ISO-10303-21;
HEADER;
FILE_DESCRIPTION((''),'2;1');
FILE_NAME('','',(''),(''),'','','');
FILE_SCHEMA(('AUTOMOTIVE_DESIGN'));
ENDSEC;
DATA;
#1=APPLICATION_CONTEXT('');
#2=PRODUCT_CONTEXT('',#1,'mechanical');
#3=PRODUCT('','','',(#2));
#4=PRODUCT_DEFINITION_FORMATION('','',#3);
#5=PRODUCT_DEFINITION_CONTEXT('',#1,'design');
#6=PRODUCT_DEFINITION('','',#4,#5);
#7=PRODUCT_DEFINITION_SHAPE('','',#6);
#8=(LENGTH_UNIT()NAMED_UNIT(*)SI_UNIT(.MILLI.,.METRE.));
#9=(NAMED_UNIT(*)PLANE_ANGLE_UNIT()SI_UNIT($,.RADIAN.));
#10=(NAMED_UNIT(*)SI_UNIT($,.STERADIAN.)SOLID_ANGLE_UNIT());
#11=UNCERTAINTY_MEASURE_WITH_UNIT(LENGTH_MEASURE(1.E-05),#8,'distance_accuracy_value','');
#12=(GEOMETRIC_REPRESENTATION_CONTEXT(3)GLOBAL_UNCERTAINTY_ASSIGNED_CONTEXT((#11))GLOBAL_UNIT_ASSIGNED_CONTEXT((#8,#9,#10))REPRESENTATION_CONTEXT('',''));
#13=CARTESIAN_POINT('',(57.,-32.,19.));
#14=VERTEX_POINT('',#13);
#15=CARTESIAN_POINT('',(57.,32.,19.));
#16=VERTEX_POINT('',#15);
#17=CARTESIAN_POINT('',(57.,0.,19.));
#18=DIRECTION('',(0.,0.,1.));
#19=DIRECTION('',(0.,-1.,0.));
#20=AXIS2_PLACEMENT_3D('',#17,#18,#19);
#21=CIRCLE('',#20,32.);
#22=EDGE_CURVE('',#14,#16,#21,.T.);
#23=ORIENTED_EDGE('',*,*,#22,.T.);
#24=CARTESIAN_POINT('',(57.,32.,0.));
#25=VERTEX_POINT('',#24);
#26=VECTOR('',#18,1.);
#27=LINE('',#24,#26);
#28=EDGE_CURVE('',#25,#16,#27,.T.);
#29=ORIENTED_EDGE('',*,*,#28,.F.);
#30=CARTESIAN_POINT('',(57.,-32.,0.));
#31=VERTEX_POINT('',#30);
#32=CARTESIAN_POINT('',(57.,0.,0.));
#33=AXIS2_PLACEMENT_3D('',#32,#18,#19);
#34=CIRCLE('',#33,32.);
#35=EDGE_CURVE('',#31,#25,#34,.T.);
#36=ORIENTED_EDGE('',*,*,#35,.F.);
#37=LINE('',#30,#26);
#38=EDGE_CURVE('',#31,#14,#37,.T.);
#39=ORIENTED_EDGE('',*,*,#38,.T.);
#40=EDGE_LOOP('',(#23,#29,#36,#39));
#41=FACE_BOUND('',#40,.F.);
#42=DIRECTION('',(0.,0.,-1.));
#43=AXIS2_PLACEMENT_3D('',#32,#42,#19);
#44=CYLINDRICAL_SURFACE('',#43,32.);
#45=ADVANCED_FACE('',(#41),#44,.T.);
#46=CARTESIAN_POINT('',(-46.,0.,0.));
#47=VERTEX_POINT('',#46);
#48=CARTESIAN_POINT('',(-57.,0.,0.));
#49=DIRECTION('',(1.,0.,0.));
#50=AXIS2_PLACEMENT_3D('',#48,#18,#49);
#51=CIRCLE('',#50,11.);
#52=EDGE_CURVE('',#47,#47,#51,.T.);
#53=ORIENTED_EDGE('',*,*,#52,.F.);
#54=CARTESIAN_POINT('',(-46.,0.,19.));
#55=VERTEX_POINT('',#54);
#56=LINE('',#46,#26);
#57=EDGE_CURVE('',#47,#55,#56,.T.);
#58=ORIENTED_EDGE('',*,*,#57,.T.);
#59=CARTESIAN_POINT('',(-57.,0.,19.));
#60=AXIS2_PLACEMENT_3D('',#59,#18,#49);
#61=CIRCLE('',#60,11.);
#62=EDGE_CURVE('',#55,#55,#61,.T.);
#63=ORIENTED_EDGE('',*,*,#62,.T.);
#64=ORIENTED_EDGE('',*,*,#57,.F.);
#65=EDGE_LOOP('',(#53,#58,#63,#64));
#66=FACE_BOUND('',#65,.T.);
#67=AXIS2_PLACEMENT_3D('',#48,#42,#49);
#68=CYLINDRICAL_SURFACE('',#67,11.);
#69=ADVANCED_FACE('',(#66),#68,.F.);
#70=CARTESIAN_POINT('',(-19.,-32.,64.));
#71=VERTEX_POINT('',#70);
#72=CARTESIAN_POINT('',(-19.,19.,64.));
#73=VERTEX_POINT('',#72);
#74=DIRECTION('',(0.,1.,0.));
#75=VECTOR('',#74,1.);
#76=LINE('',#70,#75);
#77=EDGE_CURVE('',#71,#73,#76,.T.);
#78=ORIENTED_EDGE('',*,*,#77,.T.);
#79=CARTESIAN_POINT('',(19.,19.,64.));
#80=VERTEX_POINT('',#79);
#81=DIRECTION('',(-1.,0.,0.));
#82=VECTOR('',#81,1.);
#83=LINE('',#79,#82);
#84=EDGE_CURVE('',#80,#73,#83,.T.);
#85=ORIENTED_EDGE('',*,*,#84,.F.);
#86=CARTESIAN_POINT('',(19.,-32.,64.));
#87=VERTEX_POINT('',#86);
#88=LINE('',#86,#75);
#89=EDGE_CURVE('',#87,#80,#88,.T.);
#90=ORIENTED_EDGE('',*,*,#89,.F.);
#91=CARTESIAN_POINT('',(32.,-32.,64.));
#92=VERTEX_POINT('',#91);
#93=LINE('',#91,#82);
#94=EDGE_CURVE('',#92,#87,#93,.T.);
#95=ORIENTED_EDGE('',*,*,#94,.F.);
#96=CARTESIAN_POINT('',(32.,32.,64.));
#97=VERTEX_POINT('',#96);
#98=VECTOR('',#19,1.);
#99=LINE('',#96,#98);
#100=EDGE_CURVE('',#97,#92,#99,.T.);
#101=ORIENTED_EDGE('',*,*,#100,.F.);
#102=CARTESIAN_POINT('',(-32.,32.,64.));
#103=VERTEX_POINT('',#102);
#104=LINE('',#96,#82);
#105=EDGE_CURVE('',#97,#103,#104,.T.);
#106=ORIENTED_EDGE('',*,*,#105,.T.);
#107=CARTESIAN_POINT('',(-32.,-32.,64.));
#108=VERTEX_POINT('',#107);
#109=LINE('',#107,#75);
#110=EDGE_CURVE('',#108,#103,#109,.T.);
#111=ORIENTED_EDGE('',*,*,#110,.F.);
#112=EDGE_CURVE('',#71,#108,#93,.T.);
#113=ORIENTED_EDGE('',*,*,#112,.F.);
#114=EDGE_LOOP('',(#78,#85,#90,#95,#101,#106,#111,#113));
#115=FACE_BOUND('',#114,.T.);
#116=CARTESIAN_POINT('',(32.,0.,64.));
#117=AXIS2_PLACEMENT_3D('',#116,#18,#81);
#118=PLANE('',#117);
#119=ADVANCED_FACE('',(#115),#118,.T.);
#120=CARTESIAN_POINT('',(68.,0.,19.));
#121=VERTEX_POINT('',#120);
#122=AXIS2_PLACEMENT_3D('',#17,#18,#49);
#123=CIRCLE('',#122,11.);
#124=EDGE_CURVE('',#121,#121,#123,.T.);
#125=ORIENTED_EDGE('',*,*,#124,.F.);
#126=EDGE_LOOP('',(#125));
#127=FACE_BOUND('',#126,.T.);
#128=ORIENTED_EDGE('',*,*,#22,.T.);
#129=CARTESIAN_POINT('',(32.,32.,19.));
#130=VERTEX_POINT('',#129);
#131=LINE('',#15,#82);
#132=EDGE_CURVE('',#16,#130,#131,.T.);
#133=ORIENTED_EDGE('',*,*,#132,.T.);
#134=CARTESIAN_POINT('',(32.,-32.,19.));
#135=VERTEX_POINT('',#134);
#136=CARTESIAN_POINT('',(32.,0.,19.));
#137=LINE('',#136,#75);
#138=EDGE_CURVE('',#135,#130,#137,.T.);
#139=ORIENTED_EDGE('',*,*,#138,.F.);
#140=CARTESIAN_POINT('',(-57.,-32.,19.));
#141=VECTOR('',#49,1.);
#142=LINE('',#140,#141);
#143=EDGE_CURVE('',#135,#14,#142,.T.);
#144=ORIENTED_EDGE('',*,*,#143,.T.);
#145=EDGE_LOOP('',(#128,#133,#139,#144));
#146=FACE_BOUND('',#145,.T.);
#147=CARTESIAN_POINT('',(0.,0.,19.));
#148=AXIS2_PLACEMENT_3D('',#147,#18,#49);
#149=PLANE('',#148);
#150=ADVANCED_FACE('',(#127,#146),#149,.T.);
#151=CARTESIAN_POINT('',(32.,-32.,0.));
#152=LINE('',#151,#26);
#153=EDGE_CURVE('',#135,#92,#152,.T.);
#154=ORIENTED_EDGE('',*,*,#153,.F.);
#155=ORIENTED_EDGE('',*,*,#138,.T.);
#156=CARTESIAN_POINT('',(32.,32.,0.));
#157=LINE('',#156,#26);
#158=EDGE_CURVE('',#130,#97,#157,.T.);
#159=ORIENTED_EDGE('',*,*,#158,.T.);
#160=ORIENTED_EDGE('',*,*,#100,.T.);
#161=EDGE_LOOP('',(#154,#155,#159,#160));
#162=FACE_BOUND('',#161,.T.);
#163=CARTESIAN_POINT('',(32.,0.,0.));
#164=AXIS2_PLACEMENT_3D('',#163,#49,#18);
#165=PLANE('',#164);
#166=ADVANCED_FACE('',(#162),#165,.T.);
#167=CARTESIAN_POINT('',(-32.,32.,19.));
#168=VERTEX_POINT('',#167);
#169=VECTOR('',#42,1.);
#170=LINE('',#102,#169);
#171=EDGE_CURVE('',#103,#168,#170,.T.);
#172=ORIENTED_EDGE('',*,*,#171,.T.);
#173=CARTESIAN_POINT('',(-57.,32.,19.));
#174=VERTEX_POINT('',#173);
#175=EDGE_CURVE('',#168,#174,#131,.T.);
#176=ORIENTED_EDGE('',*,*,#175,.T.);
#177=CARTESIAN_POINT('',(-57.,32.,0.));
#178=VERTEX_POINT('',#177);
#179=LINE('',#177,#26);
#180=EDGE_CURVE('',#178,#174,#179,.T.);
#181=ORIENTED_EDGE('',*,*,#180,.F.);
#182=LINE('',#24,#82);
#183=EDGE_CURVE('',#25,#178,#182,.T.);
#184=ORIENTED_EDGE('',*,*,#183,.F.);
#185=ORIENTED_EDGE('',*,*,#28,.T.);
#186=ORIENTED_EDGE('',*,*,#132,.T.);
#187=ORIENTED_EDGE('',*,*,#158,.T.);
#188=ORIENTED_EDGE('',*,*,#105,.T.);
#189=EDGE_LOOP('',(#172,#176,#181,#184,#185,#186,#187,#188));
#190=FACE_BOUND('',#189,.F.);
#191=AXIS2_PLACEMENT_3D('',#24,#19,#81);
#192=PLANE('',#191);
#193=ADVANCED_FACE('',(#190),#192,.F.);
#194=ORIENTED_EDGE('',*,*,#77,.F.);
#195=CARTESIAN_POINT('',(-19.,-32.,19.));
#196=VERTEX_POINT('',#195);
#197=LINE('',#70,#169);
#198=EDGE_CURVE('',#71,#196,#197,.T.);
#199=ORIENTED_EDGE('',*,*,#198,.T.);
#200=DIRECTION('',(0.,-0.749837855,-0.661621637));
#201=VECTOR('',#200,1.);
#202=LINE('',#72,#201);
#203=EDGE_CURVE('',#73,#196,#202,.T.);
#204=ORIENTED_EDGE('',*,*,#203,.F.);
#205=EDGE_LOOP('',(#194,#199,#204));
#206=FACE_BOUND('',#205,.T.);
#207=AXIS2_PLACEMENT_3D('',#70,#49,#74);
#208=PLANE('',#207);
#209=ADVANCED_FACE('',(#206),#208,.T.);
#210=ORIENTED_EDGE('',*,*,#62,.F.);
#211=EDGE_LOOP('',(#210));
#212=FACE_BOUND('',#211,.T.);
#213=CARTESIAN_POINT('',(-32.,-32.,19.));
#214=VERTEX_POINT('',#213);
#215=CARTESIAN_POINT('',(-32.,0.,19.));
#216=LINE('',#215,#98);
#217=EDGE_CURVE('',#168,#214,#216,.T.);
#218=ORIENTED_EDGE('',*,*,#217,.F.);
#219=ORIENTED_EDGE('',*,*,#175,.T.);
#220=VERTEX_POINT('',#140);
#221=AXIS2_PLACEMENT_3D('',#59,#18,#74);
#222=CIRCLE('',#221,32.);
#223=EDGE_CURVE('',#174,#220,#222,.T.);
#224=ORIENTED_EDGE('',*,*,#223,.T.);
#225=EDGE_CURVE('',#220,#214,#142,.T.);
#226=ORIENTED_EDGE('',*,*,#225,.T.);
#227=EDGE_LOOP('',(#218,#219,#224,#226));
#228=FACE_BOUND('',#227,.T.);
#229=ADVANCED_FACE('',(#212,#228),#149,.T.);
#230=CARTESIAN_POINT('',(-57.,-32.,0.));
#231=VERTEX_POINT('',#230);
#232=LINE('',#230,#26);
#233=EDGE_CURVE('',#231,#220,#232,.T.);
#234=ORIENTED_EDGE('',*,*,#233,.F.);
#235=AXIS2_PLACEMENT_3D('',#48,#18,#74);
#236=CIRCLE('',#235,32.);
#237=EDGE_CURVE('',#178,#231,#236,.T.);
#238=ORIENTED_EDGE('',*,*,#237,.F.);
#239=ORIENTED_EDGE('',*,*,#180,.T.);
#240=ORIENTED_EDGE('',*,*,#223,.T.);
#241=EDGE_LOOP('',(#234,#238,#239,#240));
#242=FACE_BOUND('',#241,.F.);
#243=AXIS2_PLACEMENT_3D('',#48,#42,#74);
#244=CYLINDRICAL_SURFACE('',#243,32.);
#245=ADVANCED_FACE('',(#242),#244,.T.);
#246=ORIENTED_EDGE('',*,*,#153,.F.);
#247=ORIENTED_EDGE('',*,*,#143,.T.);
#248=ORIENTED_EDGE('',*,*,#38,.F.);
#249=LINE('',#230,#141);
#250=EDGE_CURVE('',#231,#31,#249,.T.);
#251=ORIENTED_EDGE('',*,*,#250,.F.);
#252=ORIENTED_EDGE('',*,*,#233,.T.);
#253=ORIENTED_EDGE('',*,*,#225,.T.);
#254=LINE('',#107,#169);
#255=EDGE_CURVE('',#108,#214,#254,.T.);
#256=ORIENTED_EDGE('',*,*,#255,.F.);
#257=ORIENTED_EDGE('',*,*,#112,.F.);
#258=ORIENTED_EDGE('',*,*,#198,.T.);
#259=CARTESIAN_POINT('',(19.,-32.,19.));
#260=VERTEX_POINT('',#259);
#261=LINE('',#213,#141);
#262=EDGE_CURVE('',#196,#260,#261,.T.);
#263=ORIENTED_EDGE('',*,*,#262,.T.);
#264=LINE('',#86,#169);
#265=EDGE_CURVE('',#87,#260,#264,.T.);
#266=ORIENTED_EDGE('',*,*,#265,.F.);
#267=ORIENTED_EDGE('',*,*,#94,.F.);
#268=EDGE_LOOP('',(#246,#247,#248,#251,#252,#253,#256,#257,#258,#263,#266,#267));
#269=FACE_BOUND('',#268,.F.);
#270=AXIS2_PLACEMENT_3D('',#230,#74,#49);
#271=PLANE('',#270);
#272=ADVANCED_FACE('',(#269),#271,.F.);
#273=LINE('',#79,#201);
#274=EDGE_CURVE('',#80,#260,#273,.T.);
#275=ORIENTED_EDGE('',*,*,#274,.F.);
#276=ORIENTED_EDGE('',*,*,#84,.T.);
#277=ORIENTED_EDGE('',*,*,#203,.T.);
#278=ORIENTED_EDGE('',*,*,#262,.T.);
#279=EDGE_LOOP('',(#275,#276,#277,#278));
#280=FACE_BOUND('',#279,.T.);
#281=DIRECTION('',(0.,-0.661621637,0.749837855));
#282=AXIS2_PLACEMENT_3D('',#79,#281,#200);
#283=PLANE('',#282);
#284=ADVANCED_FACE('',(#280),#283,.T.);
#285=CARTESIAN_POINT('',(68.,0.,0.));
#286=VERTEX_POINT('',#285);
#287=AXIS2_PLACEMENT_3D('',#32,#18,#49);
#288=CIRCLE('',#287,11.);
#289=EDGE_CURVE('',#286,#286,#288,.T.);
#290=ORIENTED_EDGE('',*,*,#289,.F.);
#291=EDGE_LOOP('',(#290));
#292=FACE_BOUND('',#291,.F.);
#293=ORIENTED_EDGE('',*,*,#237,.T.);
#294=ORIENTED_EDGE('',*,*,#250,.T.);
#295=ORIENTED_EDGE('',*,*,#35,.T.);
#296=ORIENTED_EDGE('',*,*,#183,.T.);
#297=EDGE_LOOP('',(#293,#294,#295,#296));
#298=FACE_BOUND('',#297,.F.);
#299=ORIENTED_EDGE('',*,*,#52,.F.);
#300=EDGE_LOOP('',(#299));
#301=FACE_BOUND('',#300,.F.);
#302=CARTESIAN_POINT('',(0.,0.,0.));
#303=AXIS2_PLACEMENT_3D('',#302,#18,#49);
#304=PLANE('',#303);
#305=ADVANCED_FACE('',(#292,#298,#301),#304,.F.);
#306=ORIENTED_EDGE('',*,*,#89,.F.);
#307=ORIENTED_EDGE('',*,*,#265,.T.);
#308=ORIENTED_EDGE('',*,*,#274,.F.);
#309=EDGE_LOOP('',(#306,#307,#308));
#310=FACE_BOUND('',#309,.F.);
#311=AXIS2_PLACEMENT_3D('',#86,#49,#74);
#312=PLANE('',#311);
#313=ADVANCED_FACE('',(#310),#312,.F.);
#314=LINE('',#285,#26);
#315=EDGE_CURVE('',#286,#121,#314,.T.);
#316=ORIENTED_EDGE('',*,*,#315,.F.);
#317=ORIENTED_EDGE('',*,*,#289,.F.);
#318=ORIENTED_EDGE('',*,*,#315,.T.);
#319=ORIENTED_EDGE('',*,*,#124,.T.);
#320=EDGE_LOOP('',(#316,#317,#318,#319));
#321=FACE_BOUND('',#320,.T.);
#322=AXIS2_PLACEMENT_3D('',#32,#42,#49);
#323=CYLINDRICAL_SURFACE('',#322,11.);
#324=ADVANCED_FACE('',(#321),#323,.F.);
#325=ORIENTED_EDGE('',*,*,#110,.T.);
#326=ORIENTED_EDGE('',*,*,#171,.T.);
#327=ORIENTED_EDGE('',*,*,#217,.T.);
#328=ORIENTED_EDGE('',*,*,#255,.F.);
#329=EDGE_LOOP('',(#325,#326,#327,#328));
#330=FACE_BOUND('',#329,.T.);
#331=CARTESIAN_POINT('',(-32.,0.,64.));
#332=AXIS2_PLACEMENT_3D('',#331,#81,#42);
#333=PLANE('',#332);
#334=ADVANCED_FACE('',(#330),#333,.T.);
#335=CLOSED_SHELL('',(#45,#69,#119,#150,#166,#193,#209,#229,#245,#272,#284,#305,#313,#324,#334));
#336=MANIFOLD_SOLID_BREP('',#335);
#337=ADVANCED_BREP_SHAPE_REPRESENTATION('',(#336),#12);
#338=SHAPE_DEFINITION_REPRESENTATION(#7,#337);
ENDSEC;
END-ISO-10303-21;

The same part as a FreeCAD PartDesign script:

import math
import FreeCAD as App
import Part
import Sketcher
from FreeCAD import Vector


def add_polygon(sketch, points):
    """Adds a closed chain of lines whose ends are joined by coincident constraints."""
    first, n = sketch.GeometryCount, len(points)
    for a, b in zip(points, points[1:] + points[:1]):
        sketch.addGeometry(Part.LineSegment(App.Vector(*a, 0), App.Vector(*b, 0)), False)
    for i in range(n):
        sketch.addConstraint(Sketcher.Constraint("Coincident", first + i, 2, first + (i + 1) % n, 1))

doc = App.newDocument("Part")
body = doc.addObject("PartDesign::Body", "Body")

# Sketch on XY plane
sketch1 = doc.addObject("Sketcher::SketchObject", "Sketch")
body.addObject(sketch1)
sketch1.AttachmentSupport = (doc.XY_Plane, [""])
sketch1.MapMode = "FlatFace"
sketch1.addGeometry([
    Part.ArcOfCircle(Part.Circle(Vector(57, 0, 0), Vector(0, 0, 1), 32), math.radians(-90), math.radians(90)),  # 0
    Part.LineSegment(Vector(57, 32, 0), Vector(-57, 32, 0)),  # 1
    Part.ArcOfCircle(Part.Circle(Vector(-57, 0, 0), Vector(0, 0, 1), 32), math.radians(90), math.radians(270)),  # 2
    Part.LineSegment(Vector(-57, -32, 0), Vector(57, -32, 0)),  # 3
    Part.Circle(Vector(-57, 0, 0), Vector(0, 0, 1), 11),  # 4
    Part.Circle(Vector(57, 0, 0), Vector(0, 0, 1), 11),  # 5
], False)
sketch1.addConstraint([
    Sketcher.Constraint("Tangent", 0, 2, 1, 1),
    Sketcher.Constraint("Tangent", 1, 2, 2, 1),
    Sketcher.Constraint("Tangent", 2, 2, 3, 1),
    Sketcher.Constraint("Tangent", 3, 2, 0, 1),
    Sketcher.Constraint("Horizontal", 1),
    Sketcher.Constraint("Horizontal", 3),
    Sketcher.Constraint("Coincident", 4, 3, 2, 3),
    Sketcher.Constraint("Coincident", 5, 3, 0, 3),
    Sketcher.Constraint("Equal", 4, 5),
    Sketcher.Constraint("Symmetric", 0, 3, 2, 3, -1, 1),
    Sketcher.Constraint("Diameter", 4, 22.0),
    Sketcher.Constraint("Radius", 0, 32.0),
    Sketcher.Constraint("DistanceX", 1, 2, 1, 1, 114.0),
])
pad1 = doc.addObject("PartDesign::Pad", "Pad")
body.addObject(pad1)
pad1.Profile = sketch1
pad1.Length = 19

# Sketch on XZ plane
sketch2 = doc.addObject("Sketcher::SketchObject", "Sketch001")
body.addObject(sketch2)
sketch2.AttachmentSupport = (doc.XZ_Plane, [""])
sketch2.MapMode = "FlatFace"
add_polygon(sketch2, [(32, 0), (-32, 0), (-32, 64), (32, 64)])  # lines 0-3
sketch2.addConstraint([
    Sketcher.Constraint("Horizontal", 0),
    Sketcher.Constraint("Vertical", 1),
    Sketcher.Constraint("Horizontal", 2),
    Sketcher.Constraint("Vertical", 3),
    Sketcher.Constraint("Symmetric", 0, 2, 3, 2, -1, 1),
    Sketcher.Constraint("Equal", 2, 1),
    Sketcher.Constraint("DistanceX", 0, 2, 0, 1, 64.0),
])
pad2 = doc.addObject("PartDesign::Pad", "Pad001")
body.addObject(pad2)
pad2.Profile = sketch2
pad2.Length = 64
pad2.Midplane = True

# Sketch on XY plane
sketch3 = doc.addObject("Sketcher::SketchObject", "Sketch002")
body.addObject(sketch3)
sketch3.AttachmentSupport = (doc.XY_Plane, [""])
sketch3.MapMode = "FlatFace"
sketch3.AttachmentOffset = App.Placement(Vector(0, 0, 64), App.Rotation())
add_polygon(sketch3, [(-19, -32), (19, -32), (19, 19), (-19, 19)])  # lines 0-3
sketch3.addConstraint([
    Sketcher.Constraint("Horizontal", 0),
    Sketcher.Constraint("Vertical", 1),
    Sketcher.Constraint("Horizontal", 2),
    Sketcher.Constraint("Vertical", 3),
    Sketcher.Constraint("DistanceY", 1, 1, 1, 2, 51.0),
    Sketcher.Constraint("DistanceX", 0, 1, 0, 2, 38.0),
    Sketcher.Constraint("DistanceX", -1, 1, 0, 2, 19.0),
    Sketcher.Constraint("DistanceY", 0, 2, -1, 1, 32.0),
])
pocket1 = doc.addObject("PartDesign::Pocket", "Pocket")
body.addObject(pocket1)
pocket1.Profile = sketch3
pocket1.Length = 45

# Sketch on YZ plane
sketch4 = doc.addObject("Sketcher::SketchObject", "Sketch003")
body.addObject(sketch4)
sketch4.AttachmentSupport = (doc.YZ_Plane, [""])
sketch4.MapMode = "FlatFace"
sketch4.AttachmentOffset = App.Placement(Vector(0, 0, 19), App.Rotation())
add_polygon(sketch4, [(-32, 19), (19, 64), (19, 19)])  # lines 0-2
sketch4.addConstraint([
    Sketcher.Constraint("Vertical", 1),
    Sketcher.Constraint("Horizontal", 2),
    Sketcher.Constraint("DistanceX", 2, 2, 2, 1, 51.0),
    Sketcher.Constraint("DistanceY", 1, 2, 1, 1, 45.0),
    Sketcher.Constraint("DistanceX", -1, 1, 0, 2, 19.0),
    Sketcher.Constraint("DistanceY", -1, 1, 0, 2, 64.0),
])
pad3 = doc.addObject("PartDesign::Pad", "Pad002")
body.addObject(pad3)
pad3.Profile = sketch4
pad3.Length = 38
pad3.Reversed = True

doc.recompute()
